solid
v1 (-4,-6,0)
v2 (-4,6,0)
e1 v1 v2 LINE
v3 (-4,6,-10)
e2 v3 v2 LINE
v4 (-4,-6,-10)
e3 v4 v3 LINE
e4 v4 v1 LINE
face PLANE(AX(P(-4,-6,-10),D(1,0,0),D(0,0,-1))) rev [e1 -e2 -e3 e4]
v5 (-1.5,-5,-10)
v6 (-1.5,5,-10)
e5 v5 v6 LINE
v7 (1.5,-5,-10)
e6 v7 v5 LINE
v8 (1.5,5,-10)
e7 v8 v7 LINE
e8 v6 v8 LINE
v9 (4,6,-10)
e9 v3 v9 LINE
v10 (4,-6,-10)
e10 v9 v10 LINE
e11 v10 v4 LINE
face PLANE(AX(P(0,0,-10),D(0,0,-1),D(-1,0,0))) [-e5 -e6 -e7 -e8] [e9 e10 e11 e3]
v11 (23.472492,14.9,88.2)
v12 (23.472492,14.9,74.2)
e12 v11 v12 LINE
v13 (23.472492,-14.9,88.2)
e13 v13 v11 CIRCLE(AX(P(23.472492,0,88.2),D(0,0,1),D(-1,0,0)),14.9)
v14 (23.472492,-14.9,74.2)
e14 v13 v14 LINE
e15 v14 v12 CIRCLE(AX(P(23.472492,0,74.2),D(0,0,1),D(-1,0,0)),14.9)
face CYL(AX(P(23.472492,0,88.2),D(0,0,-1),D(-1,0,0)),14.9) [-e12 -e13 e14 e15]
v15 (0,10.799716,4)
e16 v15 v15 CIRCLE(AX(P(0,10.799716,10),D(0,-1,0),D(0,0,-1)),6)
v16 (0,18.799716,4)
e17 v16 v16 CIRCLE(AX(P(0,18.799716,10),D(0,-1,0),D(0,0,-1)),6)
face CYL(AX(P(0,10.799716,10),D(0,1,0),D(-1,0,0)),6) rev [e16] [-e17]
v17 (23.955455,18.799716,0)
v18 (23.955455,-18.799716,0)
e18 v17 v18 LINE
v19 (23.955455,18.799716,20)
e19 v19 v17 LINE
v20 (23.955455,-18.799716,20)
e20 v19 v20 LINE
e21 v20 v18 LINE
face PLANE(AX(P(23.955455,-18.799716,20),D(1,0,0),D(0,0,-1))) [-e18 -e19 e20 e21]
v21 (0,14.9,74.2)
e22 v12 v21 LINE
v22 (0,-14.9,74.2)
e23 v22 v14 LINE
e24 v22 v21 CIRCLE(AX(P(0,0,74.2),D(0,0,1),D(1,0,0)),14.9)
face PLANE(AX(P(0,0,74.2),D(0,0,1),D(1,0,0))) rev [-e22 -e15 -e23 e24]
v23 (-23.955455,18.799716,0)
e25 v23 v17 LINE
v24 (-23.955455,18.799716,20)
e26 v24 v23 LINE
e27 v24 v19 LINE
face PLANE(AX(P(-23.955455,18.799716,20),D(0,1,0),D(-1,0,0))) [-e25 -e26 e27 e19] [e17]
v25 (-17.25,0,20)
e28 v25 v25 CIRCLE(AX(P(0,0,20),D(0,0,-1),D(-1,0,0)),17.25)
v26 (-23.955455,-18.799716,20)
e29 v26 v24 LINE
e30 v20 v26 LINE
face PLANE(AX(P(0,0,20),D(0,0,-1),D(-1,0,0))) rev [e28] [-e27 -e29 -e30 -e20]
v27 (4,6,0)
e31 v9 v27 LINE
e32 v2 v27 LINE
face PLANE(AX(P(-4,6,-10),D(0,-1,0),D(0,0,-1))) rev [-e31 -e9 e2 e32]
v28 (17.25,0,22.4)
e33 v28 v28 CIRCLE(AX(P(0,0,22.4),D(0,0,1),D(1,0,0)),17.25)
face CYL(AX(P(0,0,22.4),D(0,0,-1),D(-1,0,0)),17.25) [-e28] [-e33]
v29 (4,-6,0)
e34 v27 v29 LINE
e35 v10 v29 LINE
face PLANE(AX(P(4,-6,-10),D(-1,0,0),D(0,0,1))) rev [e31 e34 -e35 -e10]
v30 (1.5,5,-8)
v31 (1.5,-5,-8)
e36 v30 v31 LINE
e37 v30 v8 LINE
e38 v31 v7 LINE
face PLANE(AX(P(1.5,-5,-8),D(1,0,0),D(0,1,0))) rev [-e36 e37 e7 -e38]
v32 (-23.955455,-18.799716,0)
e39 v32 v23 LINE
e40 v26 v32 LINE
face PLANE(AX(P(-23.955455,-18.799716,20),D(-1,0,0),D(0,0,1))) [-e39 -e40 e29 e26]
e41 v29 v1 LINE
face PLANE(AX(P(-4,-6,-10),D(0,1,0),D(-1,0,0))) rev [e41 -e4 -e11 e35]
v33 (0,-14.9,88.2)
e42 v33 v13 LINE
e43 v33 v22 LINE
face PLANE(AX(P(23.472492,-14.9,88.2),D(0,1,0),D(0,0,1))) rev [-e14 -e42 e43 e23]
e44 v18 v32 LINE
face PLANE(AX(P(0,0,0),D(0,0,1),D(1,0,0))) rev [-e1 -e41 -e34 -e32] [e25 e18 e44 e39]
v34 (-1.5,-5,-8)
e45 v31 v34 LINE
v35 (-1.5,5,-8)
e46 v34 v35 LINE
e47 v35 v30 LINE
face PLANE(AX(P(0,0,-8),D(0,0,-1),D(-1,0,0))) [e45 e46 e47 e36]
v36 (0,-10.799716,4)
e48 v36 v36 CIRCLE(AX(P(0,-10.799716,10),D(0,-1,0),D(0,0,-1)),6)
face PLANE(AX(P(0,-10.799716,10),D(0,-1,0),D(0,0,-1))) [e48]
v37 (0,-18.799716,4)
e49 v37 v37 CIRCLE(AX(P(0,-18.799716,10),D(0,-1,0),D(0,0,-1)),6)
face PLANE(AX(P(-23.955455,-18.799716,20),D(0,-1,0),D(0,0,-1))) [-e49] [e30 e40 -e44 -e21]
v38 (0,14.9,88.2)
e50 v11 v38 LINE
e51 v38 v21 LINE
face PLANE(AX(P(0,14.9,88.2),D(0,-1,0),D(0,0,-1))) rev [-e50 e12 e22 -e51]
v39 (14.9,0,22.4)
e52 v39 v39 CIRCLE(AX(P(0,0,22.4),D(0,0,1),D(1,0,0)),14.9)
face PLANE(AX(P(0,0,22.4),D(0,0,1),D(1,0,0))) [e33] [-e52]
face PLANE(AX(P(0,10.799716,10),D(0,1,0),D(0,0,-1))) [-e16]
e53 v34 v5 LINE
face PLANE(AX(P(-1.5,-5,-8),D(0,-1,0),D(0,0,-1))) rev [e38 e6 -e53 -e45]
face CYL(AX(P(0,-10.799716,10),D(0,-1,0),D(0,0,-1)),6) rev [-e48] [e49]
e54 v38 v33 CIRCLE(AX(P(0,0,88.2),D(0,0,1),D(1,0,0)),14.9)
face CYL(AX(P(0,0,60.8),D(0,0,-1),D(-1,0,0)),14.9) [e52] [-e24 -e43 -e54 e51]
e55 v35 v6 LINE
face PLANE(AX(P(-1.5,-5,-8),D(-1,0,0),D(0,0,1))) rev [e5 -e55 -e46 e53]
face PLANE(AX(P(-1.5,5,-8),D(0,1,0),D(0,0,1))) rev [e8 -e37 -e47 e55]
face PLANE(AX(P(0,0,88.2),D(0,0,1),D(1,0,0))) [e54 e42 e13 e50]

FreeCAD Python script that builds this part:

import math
import FreeCAD as App
import Part
import Sketcher

V = App.Vector


def add_polygon(sketch, points):
    """Adds a closed chain of lines whose ends are joined by coincident constraints."""
    first, n = sketch.GeometryCount, len(points)
    for a, b in zip(points, points[1:] + points[:1]):
        sketch.addGeometry(Part.LineSegment(App.Vector(*a, 0), App.Vector(*b, 0)), False)
    for i in range(n):
        sketch.addConstraint(Sketcher.Constraint("Coincident", first + i, 2, first + (i + 1) % n, 1))

doc = App.newDocument("Part")
params = doc.addObject("Spreadsheet::Sheet", "Params")
for row, (alias, value) in enumerate([
    ("sketch1_diameter", "34.5 mm"),
    ("pad1_length", "22.4 mm"),
    ("sketch2_diameter", "29.8 mm"),
    ("pad2_length", "38.4 mm"),
    ("sketch3_diameter", "29.8 mm"),
    ("pad3_length", "13.4 mm"),
    ("sketch4_radius", "14.9 mm"),
    ("pad4_length", "14 mm"),
    ("sketch5_width", "8 mm"),
    ("sketch5_height", "12 mm"),
    ("pad5_length", "10 mm"),
    ("sketch6_width", "3 mm"),
    ("sketch6_height", "10 mm"),
    ("pocket1_length", "2 mm"),
    ("pad6_length", "20 mm"),
    ("sketch8_diameter", "12 mm"),
    ("pocket2_length", "8 mm"),
], start=1):
    params.set(f"A{row}", alias)
    params.set(f"B{row}", "=" + value)
    params.setAlias(f"B{row}", alias)

body = doc.addObject("PartDesign::Body", "Body")

sketch1 = body.newObject("Sketcher::SketchObject", "Sketch")
sketch1.AttachmentSupport = (doc.getObject("XY_Plane"), [""])
sketch1.MapMode = "FlatFace"
sketch1.addGeometry(Part.Circle(V(0, 0, 0), V(0, 0, 1), 17), False)
sketch1.addConstraint(Sketcher.Constraint("Coincident", 0, 3, -1, 1))
sketch1.addConstraint(Sketcher.Constraint("Diameter", 0, 34.5))
sketch1.setExpression("Constraints[1]", "Params.sketch1_diameter")
pad1 = body.newObject("PartDesign::Pad", "Pad")
pad1.Profile = sketch1
pad1.setExpression("Length", "Params.pad1_length")

sketch2 = body.newObject("Sketcher::SketchObject", "Sketch001")
sketch2.AttachmentSupport = (doc.getObject("XY_Plane"), [""])
sketch2.MapMode = "FlatFace"
sketch2.AttachmentOffset = App.Placement(V(0, 0, 22.4), App.Rotation())
sketch2.addGeometry(Part.Circle(V(0, 0, 0), V(0, 0, 1), 15), False)
sketch2.addConstraint(Sketcher.Constraint("Coincident", 0, 3, -1, 1))
sketch2.addConstraint(Sketcher.Constraint("Diameter", 0, 29.8))
sketch2.setExpression("Constraints[1]", "Params.sketch2_diameter")
pad2 = body.newObject("PartDesign::Pad", "Pad001")
pad2.Profile = sketch2
pad2.setExpression("Length", "Params.pad2_length")

sketch3 = body.newObject("Sketcher::SketchObject", "Sketch002")
sketch3.AttachmentSupport = (doc.getObject("XY_Plane"), [""])
sketch3.MapMode = "FlatFace"
sketch3.AttachmentOffset = App.Placement(V(0, 0, 60.8), App.Rotation())
sketch3.addGeometry(Part.Circle(V(0, 0, 0), V(0, 0, 1), 15), False)
sketch3.addConstraint(Sketcher.Constraint("Coincident", 0, 3, -1, 1))
sketch3.addConstraint(Sketcher.Constraint("Diameter", 0, 29.8))
sketch3.setExpression("Constraints[1]", "Params.sketch3_diameter")
pad3 = body.newObject("PartDesign::Pad", "Pad002")
pad3.Profile = sketch3
pad3.setExpression("Length", "Params.pad3_length")

sketch4 = body.newObject("Sketcher::SketchObject", "Sketch003")
sketch4.AttachmentSupport = (doc.getObject("XY_Plane"), [""])
sketch4.MapMode = "FlatFace"
sketch4.AttachmentOffset = App.Placement(V(0, 0, 74.2), App.Rotation())
sketch4.addGeometry(Part.LineSegment(V(23, 15, 0), V(0, 15, 0)), False)
sketch4.addGeometry(Part.ArcOfCircle(Part.Circle(V(0, 0, 0), V(0, 0, 1), 15), math.radians(90), math.radians(270)), False)
sketch4.addGeometry(Part.LineSegment(V(0, -15, 0), V(23, -15, 0)), False)
sketch4.addGeometry(Part.ArcOfCircle(Part.Circle(V(23, 0, 0), V(0, 0, 1), 15), math.radians(-90), math.radians(90)), False)
sketch4.addConstraint(Sketcher.Constraint("Tangent", 0, 2, 1, 1))
sketch4.addConstraint(Sketcher.Constraint("Tangent", 1, 2, 2, 1))
sketch4.addConstraint(Sketcher.Constraint("Tangent", 2, 2, 3, 1))
sketch4.addConstraint(Sketcher.Constraint("Tangent", 3, 2, 0, 1))
sketch4.addConstraint(Sketcher.Constraint("Horizontal", 0))
sketch4.addConstraint(Sketcher.Constraint("Horizontal", 2))
sketch4.addConstraint(Sketcher.Constraint("Coincident", 1, 3, -1, 1))
sketch4.addConstraint(Sketcher.Constraint("Radius", 1, 14.9))
sketch4.addConstraint(Sketcher.Constraint("DistanceX", 0, 2, 0, 1, 23.472492))
sketch4.setExpression("Constraints[7]", "Params.sketch4_radius")
pad4 = body.newObject("PartDesign::Pad", "Pad003")
pad4.Profile = sketch4
pad4.setExpression("Length", "Params.pad4_length")

sketch5 = body.newObject("Sketcher::SketchObject", "Sketch004")
sketch5.AttachmentSupport = (doc.getObject("XY_Plane"), [""])
sketch5.MapMode = "FlatFace"
add_polygon(sketch5, [(4, 6), (4, -6), (-4, -6), (-4, 6)])
sketch5.addConstraint(Sketcher.Constraint("Vertical", 0))
sketch5.addConstraint(Sketcher.Constraint("Horizontal", 1))
sketch5.addConstraint(Sketcher.Constraint("Vertical", 2))
sketch5.addConstraint(Sketcher.Constraint("Horizontal", 3))
sketch5.addConstraint(Sketcher.Constraint("Symmetric", 0, 2, 2, 2, -1, 1))
sketch5.addConstraint(Sketcher.Constraint("DistanceX", 1, 2, 1, 1, 8.0))
sketch5.addConstraint(Sketcher.Constraint("DistanceY", 0, 2, 0, 1, 12.0))
sketch5.setExpression("Constraints[9]", "Params.sketch5_width")
sketch5.setExpression("Constraints[10]", "Params.sketch5_height")
pad5 = body.newObject("PartDesign::Pad", "Pad004")
pad5.Profile = sketch5
pad5.setExpression("Length", "Params.pad5_length")
pad5.Reversed = True

sketch6 = body.newObject("Sketcher::SketchObject", "Sketch005")
sketch6.AttachmentSupport = (doc.getObject("XY_Plane"), [""])
sketch6.MapMode = "FlatFace"
sketch6.AttachmentOffset = App.Placement(V(0, 0, -10), App.Rotation())
add_polygon(sketch6, [(1.5, 5), (1.5, -5), (-1.5, -5), (-1.5, 5)])
sketch6.addConstraint(Sketcher.Constraint("Vertical", 0))
sketch6.addConstraint(Sketcher.Constraint("Horizontal", 1))
sketch6.addConstraint(Sketcher.Constraint("Vertical", 2))
sketch6.addConstraint(Sketcher.Constraint("Horizontal", 3))
sketch6.addConstraint(Sketcher.Constraint("Symmetric", 0, 2, 2, 2, -1, 1))
sketch6.addConstraint(Sketcher.Constraint("DistanceX", 1, 2, 1, 1, 3.0))
sketch6.addConstraint(Sketcher.Constraint("DistanceY", 0, 2, 0, 1, 10.0))
sketch6.setExpression("Constraints[9]", "Params.sketch6_width")
sketch6.setExpression("Constraints[10]", "Params.sketch6_height")
pocket1 = body.newObject("PartDesign::Pocket", "Pocket")
pocket1.Profile = sketch6
pocket1.setExpression("Length", "Params.pocket1_length")
pocket1.Reversed = True

sketch7 = body.newObject("Sketcher::SketchObject", "Sketch006")
sketch7.AttachmentSupport = (doc.getObject("XY_Plane"), [""])
sketch7.MapMode = "FlatFace"
add_polygon(sketch7, [(24, 19), (24, -19), (-24, -19), (-24, 19)])
sketch7.addConstraint(Sketcher.Constraint("Vertical", 0))
sketch7.addConstraint(Sketcher.Constraint("Horizontal", 1))
sketch7.addConstraint(Sketcher.Constraint("Vertical", 2))
sketch7.addConstraint(Sketcher.Constraint("Horizontal", 3))
sketch7.addConstraint(Sketcher.Constraint("Symmetric", 0, 2, 2, 2, -1, 1))
sketch7.addConstraint(Sketcher.Constraint("DistanceX", 1, 2, 1, 1, 47.91091))
sketch7.addConstraint(Sketcher.Constraint("DistanceY", 0, 2, 0, 1, 37.599433))
pad6 = body.newObject("PartDesign::Pad", "Pad005")
pad6.Profile = sketch7
pad6.setExpression("Length", "Params.pad6_length")

sketch8 = body.newObject("Sketcher::SketchObject", "Sketch007")
sketch8.AttachmentSupport = (doc.getObject("XZ_Plane"), [""])
sketch8.MapMode = "FlatFace"
sketch8.AttachmentOffset = App.Placement(V(0, 0, 18.799716), App.Rotation())
sketch8.addGeometry(Part.Circle(V(0, 10, 0), V(0, 0, 1), 6), False)
sketch8.addConstraint(Sketcher.Constraint("PointOnObject", 0, 3, -2))
sketch8.addConstraint(Sketcher.Constraint("Diameter", 0, 12.0))
sketch8.addConstraint(Sketcher.Constraint("DistanceY", -1, 1, 0, 3, 10.0))
sketch8.setExpression("Constraints[1]", "Params.sketch8_diameter")
pocket2 = body.newObject("PartDesign::Pocket", "Pocket001")
pocket2.Profile = sketch8
pocket2.setExpression("Length", "Params.pocket2_length")
doc.recompute()

mirrored = body.newObject("PartDesign::Mirrored", "Mirrored")
mirrored.Originals = [pocket2]
mirrored.MirrorPlane = (doc.getObject("XZ_Plane"), [""])
body.Tip = mirrored

doc.recompute()
